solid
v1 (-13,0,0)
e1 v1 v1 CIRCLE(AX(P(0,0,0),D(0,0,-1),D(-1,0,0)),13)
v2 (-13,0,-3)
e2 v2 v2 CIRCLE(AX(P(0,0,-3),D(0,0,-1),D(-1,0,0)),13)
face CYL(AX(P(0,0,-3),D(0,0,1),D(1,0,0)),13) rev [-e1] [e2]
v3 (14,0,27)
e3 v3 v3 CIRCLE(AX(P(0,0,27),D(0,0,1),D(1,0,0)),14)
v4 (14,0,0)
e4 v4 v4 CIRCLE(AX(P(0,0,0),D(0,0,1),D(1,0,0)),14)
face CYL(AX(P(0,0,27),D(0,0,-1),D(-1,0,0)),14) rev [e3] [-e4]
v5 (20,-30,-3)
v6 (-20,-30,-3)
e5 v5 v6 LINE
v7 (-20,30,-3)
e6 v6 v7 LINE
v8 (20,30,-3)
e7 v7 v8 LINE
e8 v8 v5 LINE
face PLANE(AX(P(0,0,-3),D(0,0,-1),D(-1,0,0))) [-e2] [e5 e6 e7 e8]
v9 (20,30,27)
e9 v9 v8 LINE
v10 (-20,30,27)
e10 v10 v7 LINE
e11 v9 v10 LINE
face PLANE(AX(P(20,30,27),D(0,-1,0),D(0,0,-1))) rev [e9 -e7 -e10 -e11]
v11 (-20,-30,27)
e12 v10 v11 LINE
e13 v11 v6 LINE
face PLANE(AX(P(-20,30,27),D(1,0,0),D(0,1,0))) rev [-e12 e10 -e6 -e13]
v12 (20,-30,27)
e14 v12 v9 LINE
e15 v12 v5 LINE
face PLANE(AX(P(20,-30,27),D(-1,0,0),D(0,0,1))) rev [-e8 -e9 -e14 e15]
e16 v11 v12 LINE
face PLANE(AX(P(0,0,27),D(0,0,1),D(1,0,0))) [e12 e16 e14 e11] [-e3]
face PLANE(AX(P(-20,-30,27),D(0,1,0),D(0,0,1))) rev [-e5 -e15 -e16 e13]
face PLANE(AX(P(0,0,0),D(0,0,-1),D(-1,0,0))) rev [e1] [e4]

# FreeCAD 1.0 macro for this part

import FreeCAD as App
import Part
import Sketcher

V = App.Vector
Q = App.Units.Quantity


def add_polygon(sketch, points):
    """Adds a closed chain of lines whose ends are joined by coincident constraints."""
    first, n = sketch.GeometryCount, len(points)
    for a, b in zip(points, points[1:] + points[:1]):
        sketch.addGeometry(Part.LineSegment(App.Vector(*a, 0), App.Vector(*b, 0)), False)
    for i in range(n):
        sketch.addConstraint(Sketcher.Constraint("Coincident", first + i, 2, first + (i + 1) % n, 1))

doc = App.newDocument("Part")
body = doc.addObject("PartDesign::Body", "Body")

# Sketch on XY plane
sketch1 = doc.addObject("Sketcher::SketchObject", "Sketch")
body.addObject(sketch1)
sketch1.AttachmentSupport = (doc.XY_Plane, [""])
sketch1.MapMode = "FlatFace"
add_polygon(sketch1, [(-20, 30), (-20, -30), (20, -30), (20, 30)])  # lines 0-3
sketch1.addGeometry(Part.Circle(V(0, 0, 0), V(0, 0, 1), 14), False)  # 4
sketch1.addConstraint([
    Sketcher.Constraint("Vertical", 0),
    Sketcher.Constraint("Horizontal", 1),
    Sketcher.Constraint("Vertical", 2),
    Sketcher.Constraint("Horizontal", 3),
    Sketcher.Constraint("Coincident", 4, 3, -1, 1),
    Sketcher.Constraint("Symmetric", 0, 2, 2, 2, -1, 1),
    Sketcher.Constraint("Diameter", 4, Q("28 mm")),
    Sketcher.Constraint("DistanceX", 1, 1, 1, 2, Q("40 mm")),
    Sketcher.Constraint("DistanceY", 0, 2, 0, 1, Q("60 mm")),
])
pad1 = doc.addObject("PartDesign::Pad", "Pad")
body.addObject(pad1)
pad1.Profile = sketch1
pad1.Length = 27

# Sketch on XY plane
sketch2 = doc.addObject("Sketcher::SketchObject", "Sketch001")
body.addObject(sketch2)
sketch2.AttachmentSupport = (doc.XY_Plane, [""])
sketch2.MapMode = "FlatFace"
add_polygon(sketch2, [(20, 30), (20, -30), (-20, -30), (-20, 30)])  # lines 0-3
sketch2.addGeometry(Part.Circle(V(0, 0, 0), V(0, 0, 1), 13), False)  # 4
sketch2.addConstraint([
    Sketcher.Constraint("Vertical", 0),
    Sketcher.Constraint("Horizontal", 1),
    Sketcher.Constraint("Vertical", 2),
    Sketcher.Constraint("Horizontal", 3),
    Sketcher.Constraint("Coincident", 4, 3, -1, 1),
    Sketcher.Constraint("Symmetric", 0, 2, 2, 2, -1, 1),
    Sketcher.Constraint("Diameter", 4, Q("26 mm")),
    Sketcher.Constraint("DistanceX", 1, 2, 1, 1, Q("40 mm")),
    Sketcher.Constraint("DistanceY", 0, 2, 0, 1, Q("60 mm")),
])
pad2 = doc.addObject("PartDesign::Pad", "Pad001")
body.addObject(pad2)
pad2.Profile = sketch2
pad2.Length = 3
pad2.Reversed = True

doc.recompute()
